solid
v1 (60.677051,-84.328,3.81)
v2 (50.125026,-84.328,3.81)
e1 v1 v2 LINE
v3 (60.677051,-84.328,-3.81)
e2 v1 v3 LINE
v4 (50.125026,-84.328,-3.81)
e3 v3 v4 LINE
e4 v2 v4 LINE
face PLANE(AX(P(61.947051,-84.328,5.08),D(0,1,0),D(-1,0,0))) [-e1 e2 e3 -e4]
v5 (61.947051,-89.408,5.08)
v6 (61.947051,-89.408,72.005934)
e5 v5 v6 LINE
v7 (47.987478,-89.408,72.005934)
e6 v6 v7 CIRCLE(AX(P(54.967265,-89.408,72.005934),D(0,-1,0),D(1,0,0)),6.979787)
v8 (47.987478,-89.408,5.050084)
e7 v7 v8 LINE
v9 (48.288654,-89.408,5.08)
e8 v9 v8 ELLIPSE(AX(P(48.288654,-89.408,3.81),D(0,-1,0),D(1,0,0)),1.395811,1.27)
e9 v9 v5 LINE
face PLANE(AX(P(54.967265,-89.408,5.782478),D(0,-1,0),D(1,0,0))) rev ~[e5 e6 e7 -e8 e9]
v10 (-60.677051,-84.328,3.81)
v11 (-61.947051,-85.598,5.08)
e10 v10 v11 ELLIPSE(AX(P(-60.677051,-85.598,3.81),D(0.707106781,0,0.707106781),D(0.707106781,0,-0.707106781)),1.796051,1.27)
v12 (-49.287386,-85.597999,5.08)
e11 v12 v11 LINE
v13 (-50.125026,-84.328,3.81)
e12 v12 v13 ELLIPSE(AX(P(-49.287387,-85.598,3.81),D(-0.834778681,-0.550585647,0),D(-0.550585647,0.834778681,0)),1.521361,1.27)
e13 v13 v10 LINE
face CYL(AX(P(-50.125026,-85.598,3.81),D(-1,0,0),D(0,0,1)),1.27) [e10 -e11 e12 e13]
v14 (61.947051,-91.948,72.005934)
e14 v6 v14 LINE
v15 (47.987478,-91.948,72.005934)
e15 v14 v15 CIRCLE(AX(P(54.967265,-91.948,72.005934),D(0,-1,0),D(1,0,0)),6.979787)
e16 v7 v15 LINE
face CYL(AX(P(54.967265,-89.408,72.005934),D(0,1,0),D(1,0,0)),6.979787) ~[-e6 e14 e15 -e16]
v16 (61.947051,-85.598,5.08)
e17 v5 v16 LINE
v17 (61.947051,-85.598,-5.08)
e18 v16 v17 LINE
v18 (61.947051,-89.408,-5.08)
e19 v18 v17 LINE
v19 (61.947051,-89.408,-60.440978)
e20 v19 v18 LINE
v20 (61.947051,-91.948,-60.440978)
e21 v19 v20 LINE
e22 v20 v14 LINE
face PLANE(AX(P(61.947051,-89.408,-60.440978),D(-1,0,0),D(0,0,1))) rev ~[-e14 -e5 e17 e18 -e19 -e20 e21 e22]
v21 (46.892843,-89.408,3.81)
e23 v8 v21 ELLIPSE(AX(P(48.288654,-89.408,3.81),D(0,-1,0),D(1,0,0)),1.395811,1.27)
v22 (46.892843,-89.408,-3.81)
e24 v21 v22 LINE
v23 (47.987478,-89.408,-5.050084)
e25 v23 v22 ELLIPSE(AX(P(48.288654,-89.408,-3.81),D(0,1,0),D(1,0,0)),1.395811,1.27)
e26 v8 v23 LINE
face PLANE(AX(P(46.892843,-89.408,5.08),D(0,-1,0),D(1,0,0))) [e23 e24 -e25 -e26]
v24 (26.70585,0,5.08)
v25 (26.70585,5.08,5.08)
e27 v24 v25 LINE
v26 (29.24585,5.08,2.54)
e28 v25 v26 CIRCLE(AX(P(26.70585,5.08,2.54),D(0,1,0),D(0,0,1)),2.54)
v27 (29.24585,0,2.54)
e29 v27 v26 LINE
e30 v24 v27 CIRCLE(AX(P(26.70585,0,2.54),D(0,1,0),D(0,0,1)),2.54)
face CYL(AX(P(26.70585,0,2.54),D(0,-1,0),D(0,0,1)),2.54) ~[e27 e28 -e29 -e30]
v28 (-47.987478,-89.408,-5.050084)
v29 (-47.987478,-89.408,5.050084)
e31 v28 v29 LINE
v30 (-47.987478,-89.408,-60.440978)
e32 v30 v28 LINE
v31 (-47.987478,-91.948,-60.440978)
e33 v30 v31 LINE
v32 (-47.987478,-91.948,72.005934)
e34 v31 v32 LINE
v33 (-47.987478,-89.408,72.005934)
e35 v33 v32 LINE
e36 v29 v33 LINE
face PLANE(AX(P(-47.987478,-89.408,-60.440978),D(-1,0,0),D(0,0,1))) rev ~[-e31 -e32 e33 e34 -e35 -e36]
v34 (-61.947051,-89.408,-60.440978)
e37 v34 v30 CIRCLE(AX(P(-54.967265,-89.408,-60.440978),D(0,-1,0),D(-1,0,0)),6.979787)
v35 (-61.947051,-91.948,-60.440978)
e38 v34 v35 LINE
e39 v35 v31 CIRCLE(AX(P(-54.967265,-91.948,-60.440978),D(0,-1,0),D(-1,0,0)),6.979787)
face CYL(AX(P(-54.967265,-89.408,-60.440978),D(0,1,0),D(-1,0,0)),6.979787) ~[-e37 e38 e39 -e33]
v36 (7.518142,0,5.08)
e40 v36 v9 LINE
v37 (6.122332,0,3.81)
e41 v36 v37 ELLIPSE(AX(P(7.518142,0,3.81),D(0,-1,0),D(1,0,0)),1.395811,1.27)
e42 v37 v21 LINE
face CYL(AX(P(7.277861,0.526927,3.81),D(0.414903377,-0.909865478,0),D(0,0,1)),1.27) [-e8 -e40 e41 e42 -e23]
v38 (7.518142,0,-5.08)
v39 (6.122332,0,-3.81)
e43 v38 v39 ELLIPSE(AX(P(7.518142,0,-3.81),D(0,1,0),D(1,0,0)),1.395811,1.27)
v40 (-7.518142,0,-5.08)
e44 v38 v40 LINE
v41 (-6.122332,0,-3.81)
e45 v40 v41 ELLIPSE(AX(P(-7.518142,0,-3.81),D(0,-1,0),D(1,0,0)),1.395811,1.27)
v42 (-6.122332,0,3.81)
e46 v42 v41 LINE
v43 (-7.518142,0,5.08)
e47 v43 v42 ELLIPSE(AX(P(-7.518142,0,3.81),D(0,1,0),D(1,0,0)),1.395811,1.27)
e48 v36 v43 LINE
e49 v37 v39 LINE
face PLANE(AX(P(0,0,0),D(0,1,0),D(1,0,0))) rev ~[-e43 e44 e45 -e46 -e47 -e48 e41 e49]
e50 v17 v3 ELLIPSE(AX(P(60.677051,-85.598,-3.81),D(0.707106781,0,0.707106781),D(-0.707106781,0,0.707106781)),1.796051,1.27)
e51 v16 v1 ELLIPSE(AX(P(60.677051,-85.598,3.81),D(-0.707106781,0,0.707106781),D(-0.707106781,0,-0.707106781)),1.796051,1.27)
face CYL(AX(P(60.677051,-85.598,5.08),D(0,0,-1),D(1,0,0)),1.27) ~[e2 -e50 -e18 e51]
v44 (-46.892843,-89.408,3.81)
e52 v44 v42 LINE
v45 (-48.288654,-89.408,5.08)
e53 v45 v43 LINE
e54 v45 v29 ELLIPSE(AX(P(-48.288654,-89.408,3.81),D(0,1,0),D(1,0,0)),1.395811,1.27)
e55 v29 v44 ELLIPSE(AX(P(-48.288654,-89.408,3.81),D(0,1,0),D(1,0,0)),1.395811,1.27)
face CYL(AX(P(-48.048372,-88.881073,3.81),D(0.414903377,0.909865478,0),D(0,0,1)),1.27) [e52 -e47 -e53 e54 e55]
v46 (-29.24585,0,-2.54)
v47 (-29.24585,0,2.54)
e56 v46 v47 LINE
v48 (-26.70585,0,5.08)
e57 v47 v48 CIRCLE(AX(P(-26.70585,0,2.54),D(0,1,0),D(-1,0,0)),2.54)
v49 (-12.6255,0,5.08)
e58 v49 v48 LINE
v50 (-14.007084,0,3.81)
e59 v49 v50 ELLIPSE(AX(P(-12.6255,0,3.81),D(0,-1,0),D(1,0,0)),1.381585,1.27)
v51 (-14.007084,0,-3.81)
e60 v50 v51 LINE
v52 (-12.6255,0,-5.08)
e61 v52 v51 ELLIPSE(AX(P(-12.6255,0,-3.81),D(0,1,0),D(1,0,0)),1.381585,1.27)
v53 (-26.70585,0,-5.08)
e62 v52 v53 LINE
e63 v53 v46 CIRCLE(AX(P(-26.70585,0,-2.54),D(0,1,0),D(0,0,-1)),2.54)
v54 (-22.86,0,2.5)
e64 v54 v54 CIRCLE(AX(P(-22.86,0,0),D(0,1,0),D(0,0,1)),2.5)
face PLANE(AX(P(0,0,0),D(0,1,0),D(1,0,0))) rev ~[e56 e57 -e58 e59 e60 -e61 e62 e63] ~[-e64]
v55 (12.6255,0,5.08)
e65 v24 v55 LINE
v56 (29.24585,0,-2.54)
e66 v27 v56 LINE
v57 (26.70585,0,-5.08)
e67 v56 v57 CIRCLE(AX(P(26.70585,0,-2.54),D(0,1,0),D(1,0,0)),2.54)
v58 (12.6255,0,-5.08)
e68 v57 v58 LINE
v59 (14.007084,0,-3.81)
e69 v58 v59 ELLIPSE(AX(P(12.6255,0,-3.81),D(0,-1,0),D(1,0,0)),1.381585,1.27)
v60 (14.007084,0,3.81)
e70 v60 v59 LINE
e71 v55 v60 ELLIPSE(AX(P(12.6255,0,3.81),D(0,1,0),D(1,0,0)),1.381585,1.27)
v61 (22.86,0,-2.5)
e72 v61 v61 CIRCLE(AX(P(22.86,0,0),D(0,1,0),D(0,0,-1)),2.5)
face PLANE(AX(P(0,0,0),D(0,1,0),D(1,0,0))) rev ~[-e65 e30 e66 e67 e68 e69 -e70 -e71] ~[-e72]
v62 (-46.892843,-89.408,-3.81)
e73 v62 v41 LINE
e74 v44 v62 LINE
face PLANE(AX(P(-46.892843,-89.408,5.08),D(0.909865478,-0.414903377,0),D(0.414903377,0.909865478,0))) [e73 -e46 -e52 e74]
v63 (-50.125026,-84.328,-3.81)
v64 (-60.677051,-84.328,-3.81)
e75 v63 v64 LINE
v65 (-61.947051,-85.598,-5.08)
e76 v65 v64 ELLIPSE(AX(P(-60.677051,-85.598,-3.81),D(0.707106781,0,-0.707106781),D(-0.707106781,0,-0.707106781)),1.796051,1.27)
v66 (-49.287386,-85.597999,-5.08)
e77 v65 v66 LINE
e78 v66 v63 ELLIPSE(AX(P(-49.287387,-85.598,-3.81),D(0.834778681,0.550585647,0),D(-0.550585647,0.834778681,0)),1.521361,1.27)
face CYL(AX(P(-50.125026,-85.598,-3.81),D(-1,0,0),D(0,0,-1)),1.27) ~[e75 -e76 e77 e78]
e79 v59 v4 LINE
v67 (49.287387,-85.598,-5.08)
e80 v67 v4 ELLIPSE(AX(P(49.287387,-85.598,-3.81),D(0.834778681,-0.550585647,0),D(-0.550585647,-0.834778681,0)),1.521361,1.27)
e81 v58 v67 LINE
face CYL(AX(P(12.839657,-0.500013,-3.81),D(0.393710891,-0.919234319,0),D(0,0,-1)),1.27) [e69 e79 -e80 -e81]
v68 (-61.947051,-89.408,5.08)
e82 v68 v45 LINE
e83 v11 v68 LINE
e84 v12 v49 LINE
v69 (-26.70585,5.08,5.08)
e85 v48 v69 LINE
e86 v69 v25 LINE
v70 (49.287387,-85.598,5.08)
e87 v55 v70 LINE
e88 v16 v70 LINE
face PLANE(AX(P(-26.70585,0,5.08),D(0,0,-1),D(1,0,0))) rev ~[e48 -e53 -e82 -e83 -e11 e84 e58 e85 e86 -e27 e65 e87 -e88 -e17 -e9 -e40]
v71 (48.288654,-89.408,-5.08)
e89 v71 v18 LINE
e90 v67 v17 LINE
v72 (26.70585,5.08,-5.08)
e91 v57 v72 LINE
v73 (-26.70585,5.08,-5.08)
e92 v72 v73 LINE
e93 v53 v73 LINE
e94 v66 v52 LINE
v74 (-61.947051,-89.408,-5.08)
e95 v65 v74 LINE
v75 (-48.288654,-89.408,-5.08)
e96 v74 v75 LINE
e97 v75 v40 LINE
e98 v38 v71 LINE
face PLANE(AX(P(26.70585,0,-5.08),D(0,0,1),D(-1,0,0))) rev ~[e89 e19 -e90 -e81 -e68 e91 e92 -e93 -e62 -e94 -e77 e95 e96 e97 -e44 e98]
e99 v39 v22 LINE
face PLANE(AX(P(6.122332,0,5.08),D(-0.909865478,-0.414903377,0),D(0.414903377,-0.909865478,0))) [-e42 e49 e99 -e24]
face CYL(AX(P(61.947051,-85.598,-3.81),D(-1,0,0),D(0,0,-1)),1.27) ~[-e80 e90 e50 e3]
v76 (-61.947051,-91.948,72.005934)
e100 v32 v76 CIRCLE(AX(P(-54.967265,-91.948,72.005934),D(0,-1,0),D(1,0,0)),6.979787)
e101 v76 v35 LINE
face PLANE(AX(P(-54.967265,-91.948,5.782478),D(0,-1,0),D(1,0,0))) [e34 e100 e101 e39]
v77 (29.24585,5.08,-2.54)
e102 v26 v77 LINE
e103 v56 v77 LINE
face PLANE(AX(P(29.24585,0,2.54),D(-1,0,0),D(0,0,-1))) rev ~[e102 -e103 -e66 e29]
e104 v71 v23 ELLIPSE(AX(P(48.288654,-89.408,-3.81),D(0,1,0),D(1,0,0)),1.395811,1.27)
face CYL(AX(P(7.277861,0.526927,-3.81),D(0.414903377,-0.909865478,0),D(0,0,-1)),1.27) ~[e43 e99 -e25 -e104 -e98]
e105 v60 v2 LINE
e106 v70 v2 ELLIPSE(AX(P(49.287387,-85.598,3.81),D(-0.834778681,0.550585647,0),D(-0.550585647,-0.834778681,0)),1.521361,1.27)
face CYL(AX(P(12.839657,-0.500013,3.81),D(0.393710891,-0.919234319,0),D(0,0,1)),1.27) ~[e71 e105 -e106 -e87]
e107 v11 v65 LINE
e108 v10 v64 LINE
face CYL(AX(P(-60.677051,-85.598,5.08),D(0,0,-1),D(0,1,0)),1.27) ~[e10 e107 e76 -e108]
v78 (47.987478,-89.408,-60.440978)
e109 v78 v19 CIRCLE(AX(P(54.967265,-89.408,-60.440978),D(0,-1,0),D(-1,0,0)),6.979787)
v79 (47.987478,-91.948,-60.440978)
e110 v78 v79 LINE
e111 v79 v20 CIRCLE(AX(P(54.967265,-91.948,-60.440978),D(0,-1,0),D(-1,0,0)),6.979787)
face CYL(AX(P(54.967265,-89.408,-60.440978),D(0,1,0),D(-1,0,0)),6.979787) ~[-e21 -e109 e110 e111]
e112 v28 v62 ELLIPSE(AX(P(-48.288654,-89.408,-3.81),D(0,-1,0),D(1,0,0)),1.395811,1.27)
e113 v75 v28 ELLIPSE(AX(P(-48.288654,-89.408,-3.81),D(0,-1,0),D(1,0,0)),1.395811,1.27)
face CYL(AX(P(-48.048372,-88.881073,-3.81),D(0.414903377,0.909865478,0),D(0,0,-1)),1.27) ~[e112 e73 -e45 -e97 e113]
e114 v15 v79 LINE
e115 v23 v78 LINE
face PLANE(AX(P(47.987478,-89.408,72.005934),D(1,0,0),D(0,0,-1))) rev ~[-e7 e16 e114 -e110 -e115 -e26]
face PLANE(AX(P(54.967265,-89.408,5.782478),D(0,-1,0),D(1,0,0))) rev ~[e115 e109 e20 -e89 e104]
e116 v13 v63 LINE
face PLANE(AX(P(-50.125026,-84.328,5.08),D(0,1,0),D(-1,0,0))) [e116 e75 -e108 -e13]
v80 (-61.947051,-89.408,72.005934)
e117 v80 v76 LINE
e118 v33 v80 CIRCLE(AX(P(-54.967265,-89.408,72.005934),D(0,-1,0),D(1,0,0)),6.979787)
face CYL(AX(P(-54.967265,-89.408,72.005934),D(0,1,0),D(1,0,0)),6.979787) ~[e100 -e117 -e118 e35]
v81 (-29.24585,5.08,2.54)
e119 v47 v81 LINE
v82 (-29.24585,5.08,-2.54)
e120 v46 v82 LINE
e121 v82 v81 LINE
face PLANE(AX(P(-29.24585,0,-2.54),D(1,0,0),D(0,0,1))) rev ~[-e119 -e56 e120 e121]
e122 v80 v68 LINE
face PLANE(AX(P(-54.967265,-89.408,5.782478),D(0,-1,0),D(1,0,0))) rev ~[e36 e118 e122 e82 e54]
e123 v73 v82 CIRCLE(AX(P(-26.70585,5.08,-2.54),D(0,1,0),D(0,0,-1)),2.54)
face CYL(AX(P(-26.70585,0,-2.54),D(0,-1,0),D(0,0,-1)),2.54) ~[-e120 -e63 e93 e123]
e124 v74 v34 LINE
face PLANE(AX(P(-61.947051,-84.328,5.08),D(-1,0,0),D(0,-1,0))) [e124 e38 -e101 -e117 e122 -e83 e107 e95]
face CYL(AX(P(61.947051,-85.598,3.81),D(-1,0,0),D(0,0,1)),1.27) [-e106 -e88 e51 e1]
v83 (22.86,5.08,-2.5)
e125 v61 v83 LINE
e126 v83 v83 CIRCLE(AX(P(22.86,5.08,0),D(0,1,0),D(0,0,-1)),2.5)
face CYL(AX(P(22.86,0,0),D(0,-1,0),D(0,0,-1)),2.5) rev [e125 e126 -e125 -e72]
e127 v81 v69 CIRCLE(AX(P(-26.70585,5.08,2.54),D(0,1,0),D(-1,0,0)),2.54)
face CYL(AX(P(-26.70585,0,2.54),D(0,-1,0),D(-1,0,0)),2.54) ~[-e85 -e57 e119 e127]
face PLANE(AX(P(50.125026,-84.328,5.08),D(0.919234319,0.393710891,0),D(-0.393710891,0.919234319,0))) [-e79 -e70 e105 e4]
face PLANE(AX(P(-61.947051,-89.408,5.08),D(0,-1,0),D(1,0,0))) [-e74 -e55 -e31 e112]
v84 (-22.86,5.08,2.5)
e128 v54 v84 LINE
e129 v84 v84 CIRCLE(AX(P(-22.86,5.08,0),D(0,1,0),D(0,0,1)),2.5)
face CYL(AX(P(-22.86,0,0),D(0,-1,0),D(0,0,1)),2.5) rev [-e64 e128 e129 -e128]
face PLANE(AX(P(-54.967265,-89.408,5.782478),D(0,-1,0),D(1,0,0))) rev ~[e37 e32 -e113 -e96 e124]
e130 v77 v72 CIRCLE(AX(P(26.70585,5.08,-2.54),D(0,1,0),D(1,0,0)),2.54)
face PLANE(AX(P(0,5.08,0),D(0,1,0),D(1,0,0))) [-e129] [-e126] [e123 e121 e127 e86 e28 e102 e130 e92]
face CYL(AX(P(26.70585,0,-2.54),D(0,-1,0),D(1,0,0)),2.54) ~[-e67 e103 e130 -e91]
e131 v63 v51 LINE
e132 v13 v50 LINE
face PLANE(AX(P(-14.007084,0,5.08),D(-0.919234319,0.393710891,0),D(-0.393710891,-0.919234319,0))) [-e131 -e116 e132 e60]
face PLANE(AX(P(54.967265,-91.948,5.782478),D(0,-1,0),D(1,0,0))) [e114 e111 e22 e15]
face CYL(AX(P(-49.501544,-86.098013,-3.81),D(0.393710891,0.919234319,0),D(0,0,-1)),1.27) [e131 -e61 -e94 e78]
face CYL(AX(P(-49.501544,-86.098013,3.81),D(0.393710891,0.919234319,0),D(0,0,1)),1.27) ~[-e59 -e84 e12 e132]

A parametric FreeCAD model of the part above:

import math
import FreeCAD as App
import Part
import Sketcher
Q = App.Units.Quantity


def edges_at(feature, points):
    """Names of the edges that pass closest to the given points."""
    edges = feature.Shape.Edges
    near = lambda p: min(range(len(edges)), key=lambda i: edges[i].distToShape(Part.Vertex(*p))[0])
    return sorted({f"Edge{near(p) + 1}" for p in points})

doc = App.newDocument("Part")
body = doc.addObject("PartDesign::Body", "Body")

# Sketch on XZ plane
sketch1 = body.newObject("Sketcher::SketchObject", "Sketch")
sketch1.AttachmentSupport = (doc.getObject("XZ_Plane"), [""])
sketch1.MapMode = "FlatFace"
sketch1.addGeometry([
    Part.LineSegment(App.Vector(26.7, -5.1, 0), App.Vector(-26.7, -5.1, 0)),  # 0
    Part.ArcOfCircle(Part.Circle(App.Vector(-26.7, -2.5, 0), App.Vector(0, 0, 1), 2.5), math.radians(-180), math.radians(-90)),  # 1
    Part.LineSegment(App.Vector(-29.2, -2.5, 0), App.Vector(-29.2, 2.5, 0)),  # 2
    Part.ArcOfCircle(Part.Circle(App.Vector(-26.7, 2.5, 0), App.Vector(0, 0, 1), 2.5), math.radians(90), math.radians(180)),  # 3
    Part.LineSegment(App.Vector(-26.7, 5.1, 0), App.Vector(26.7, 5.1, 0)),  # 4
    Part.ArcOfCircle(Part.Circle(App.Vector(26.7, 2.5, 0), App.Vector(0, 0, 1), 2.5), math.radians(0), math.radians(90)),  # 5
    Part.LineSegment(App.Vector(29.2, 2.5, 0), App.Vector(29.2, -2.5, 0)),  # 6
    Part.ArcOfCircle(Part.Circle(App.Vector(26.7, -2.5, 0), App.Vector(0, 0, 1), 2.5), math.radians(-90), math.radians(0)),  # 7
    Part.Circle(App.Vector(-22.9, 0, 0), App.Vector(0, 0, 1), 2.5),  # 8
    Part.Circle(App.Vector(22.9, 0, 0), App.Vector(0, 0, 1), 2.5),  # 9
], False)
sketch1.addConstraint([
    Sketcher.Constraint("Tangent", 0, 2, 1, 2),
    Sketcher.Constraint("Tangent", 1, 1, 2, 1),
    Sketcher.Constraint("Tangent", 2, 2, 3, 2),
    Sketcher.Constraint("Tangent", 3, 1, 4, 1),
    Sketcher.Constraint("Tangent", 4, 2, 5, 2),
    Sketcher.Constraint("Tangent", 5, 1, 6, 1),
    Sketcher.Constraint("Tangent", 6, 2, 7, 2),
    Sketcher.Constraint("Tangent", 7, 1, 0, 1),
    Sketcher.Constraint("Horizontal", 0),
    Sketcher.Constraint("Vertical", 2),
    Sketcher.Constraint("Horizontal", 4),
    Sketcher.Constraint("Vertical", 6),
    Sketcher.Constraint("Equal", 1, 3),
    Sketcher.Constraint("Equal", 3, 5),
    Sketcher.Constraint("Equal", 5, 7),
    Sketcher.Constraint("Equal", 8, 9),
    Sketcher.Constraint("Symmetric", 1, 3, 5, 3, -1, 1),
    Sketcher.Constraint("Symmetric", 8, 3, 9, 3, -1, 1),
    Sketcher.Constraint("PointOnObject", 8, 3, -1),
    Sketcher.Constraint("Radius", 1, Q("0.1 in")),
    Sketcher.Constraint("DistanceY", 2, 1, 2, 2, Q("0.2 in")),
    Sketcher.Constraint("DistanceX", 8, 3, -1, 1, Q("0.9 in")),
    Sketcher.Constraint("Diameter", 8, Q("5 mm")),
    Sketcher.Constraint("DistanceX", 0, 2, 0, 1, Q("53.4117 mm")),
])
pad1 = body.newObject("PartDesign::Pad", "Pad")
pad1.Profile = sketch1
pad1.Length = Q("0.2 in")
pad1.Reversed = True

# Sketch on XY plane
sketch2 = body.newObject("Sketcher::SketchObject", "Sketch001")
sketch2.AttachmentSupport = (doc.getObject("XY_Plane"), [""])
sketch2.MapMode = "FlatFace"
sketch2.AttachmentOffset = App.Placement(App.Vector(0, 0, 0.2 * 25.4), App.Rotation())
sketch2.addGeometry([
    Part.LineSegment(App.Vector(-14, 0, 0), App.Vector(-50, -84, 0)),  # 0
    Part.LineSegment(App.Vector(-50, -84, 0), App.Vector(-62, -84, 0)),  # 1
    Part.LineSegment(App.Vector(-62, -84, 0), App.Vector(-62, -89, 0)),  # 2
    Part.LineSegment(App.Vector(-62, -89, 0), App.Vector(-47, -89, 0)),  # 3
    Part.LineSegment(App.Vector(-47, -89, 0), App.Vector(-6, 0, 0)),  # 4
    Part.LineSegment(App.Vector(-6, 0, 0), App.Vector(-14, 0, 0)),  # 5
    Part.LineSegment(App.Vector(62, -89, 0), App.Vector(62, -84, 0)),  # 6
    Part.LineSegment(App.Vector(62, -84, 0), App.Vector(50, -84, 0)),  # 7
    Part.LineSegment(App.Vector(50, -84, 0), App.Vector(14, 0, 0)),  # 8
    Part.LineSegment(App.Vector(14, 0, 0), App.Vector(6, 0, 0)),  # 9
    Part.LineSegment(App.Vector(6, 0, 0), App.Vector(47, -89, 0)),  # 10
    Part.LineSegment(App.Vector(47, -89, 0), App.Vector(62, -89, 0)),  # 11
], False)
sketch2.addConstraint([
    Sketcher.Constraint("Coincident", 0, 2, 1, 1),
    Sketcher.Constraint("Coincident", 1, 2, 2, 1),
    Sketcher.Constraint("Coincident", 2, 2, 3, 1),
    Sketcher.Constraint("Coincident", 3, 2, 4, 1),
    Sketcher.Constraint("Coincident", 4, 2, 5, 1),
    Sketcher.Constraint("Coincident", 5, 2, 0, 1),
    Sketcher.Constraint("Coincident", 6, 2, 7, 1),
    Sketcher.Constraint("Coincident", 7, 2, 8, 1),
    Sketcher.Constraint("Coincident", 8, 2, 9, 1),
    Sketcher.Constraint("Coincident", 9, 2, 10, 1),
    Sketcher.Constraint("Coincident", 10, 2, 11, 1),
    Sketcher.Constraint("Coincident", 11, 2, 6, 1),
    Sketcher.Constraint("Horizontal", 1),
    Sketcher.Constraint("Vertical", 2),
    Sketcher.Constraint("Horizontal", 3),
    Sketcher.Constraint("Horizontal", 5),
    Sketcher.Constraint("Vertical", 6),
    Sketcher.Constraint("Horizontal", 7),
    Sketcher.Constraint("Horizontal", 9),
    Sketcher.Constraint("Horizontal", 11),
    Sketcher.Constraint("Symmetric", 5, 2, 8, 2, -1, 1),
    Sketcher.Constraint("Symmetric", 1, 2, 6, 2, -2),
    Sketcher.Constraint("Symmetric", 4, 2, 9, 2, -2),
    Sketcher.Constraint("Symmetric", 3, 2, 10, 2, -2),
    Sketcher.Constraint("Equal", 1, 7),
    Sketcher.Constraint("DistanceY", 2, 2, 2, 1, Q("0.2 in")),
    Sketcher.Constraint("DistanceY", 0, 2, -1, 1, Q("3.32 in")),
    Sketcher.Constraint("DistanceX", 3, 1, 3, 2, Q("15.054208 mm")),
    Sketcher.Constraint("Distance", 0, Q("91.737219 mm")),
    Sketcher.Constraint("DistanceX", 1, 2, 1, 1, Q("11.822025 mm")),
    Sketcher.Constraint("DistanceX", 5, 2, 5, 1, Q("7.884753 mm")),
    Sketcher.Constraint("DistanceX", 1, 2, -1, 1, Q("61.947051 mm")),
])
pad2 = body.newObject("PartDesign::Pad", "Pad001")
pad2.Profile = sketch2
pad2.Length = Q("0.4 in")
pad2.Reversed = True
doc.recompute()

fillet = body.newObject("PartDesign::Fillet", "Fillet")
fillet.Base = (pad2, edges_at(pad2, [
    (-56.036, -84.328, -5.08),
    (-61.947, -84.328, 0),
    (-56.036, -84.328, 5.08),
    (56.036, -84.328, -5.08),
    (61.947, -84.328, 0),
    (56.036, -84.328, 5.08),
]))
fillet.Radius = Q("0.05 in")
doc.recompute()

fillet2 = body.newObject("PartDesign::Fillet", "Fillet001")
fillet2.Base = (fillet, edges_at(fillet, [
    (32.338, -42.799, 5.08),
    (26.508, -44.704, 5.08),
    (26.508, -44.704, -5.08),
    (32.338, -42.799, -5.08),
    (-26.508, -44.704, 5.08),
    (-26.508, -44.704, -5.08),
    (-32.338, -42.799, -5.08),
    (-32.338, -42.799, 5.08),
]))
fillet2.Radius = Q("0.05 in")

# Sketch on XZ plane
sketch3 = body.newObject("Sketcher::SketchObject", "Sketch002")
sketch3.AttachmentSupport = (doc.getObject("XZ_Plane"), [""])
sketch3.MapMode = "FlatFace"
sketch3.AttachmentOffset = App.Placement(App.Vector(0, 0, 3.52 * 25.4), App.Rotation())
sketch3.addGeometry([
    Part.LineSegment(App.Vector(48, 72, 0), App.Vector(48, -60, 0)),  # 0
    Part.ArcOfCircle(Part.Circle(App.Vector(55, -60, 0), App.Vector(0, 0, 1), 7), math.radians(-180), math.radians(0)),  # 1
    Part.LineSegment(App.Vector(62, -60, 0), App.Vector(62, 72, 0)),  # 2
    Part.ArcOfCircle(Part.Circle(App.Vector(55, 72, 0), App.Vector(0, 0, 1), 7), math.radians(0), math.radians(180)),  # 3
    Part.LineSegment(App.Vector(-62, 72, 0), App.Vector(-62, -60, 0)),  # 4
    Part.ArcOfCircle(Part.Circle(App.Vector(-55, -60, 0), App.Vector(0, 0, 1), 7), math.radians(-180), math.radians(0)),  # 5
    Part.LineSegment(App.Vector(-48, -60, 0), App.Vector(-48, 72, 0)),  # 6
    Part.ArcOfCircle(Part.Circle(App.Vector(-55, 72, 0), App.Vector(0, 0, 1), 7), math.radians(0), math.radians(180)),  # 7
], False)
sketch3.addConstraint([
    Sketcher.Constraint("Tangent", 0, 2, 1, 1),
    Sketcher.Constraint("Tangent", 1, 2, 2, 1),
    Sketcher.Constraint("Tangent", 2, 2, 3, 1),
    Sketcher.Constraint("Tangent", 3, 2, 0, 1),
    Sketcher.Constraint("Tangent", 4, 2, 5, 1),
    Sketcher.Constraint("Tangent", 5, 2, 6, 1),
    Sketcher.Constraint("Tangent", 6, 2, 7, 1),
    Sketcher.Constraint("Tangent", 7, 2, 4, 1),
    Sketcher.Constraint("Vertical", 0),
    Sketcher.Constraint("Vertical", 2),
    Sketcher.Constraint("Vertical", 4),
    Sketcher.Constraint("Vertical", 6),
    Sketcher.Constraint("Equal", 3, 5),
    Sketcher.Constraint("Symmetric", 1, 3, 5, 3, -2),
    Sketcher.Constraint("Horizontal", 3, 3, 7, 3),
    Sketcher.Constraint("Radius", 1, Q("6.979787 mm")),
    Sketcher.Constraint("DistanceY", 0, 2, 0, 1, Q("132.446912 mm")),
    Sketcher.Constraint("DistanceX", -1, 1, 1, 2, Q("61.947051 mm")),
    Sketcher.Constraint("DistanceY", 1, 3, -1, 1, Q("60.440978 mm")),
])
pad3 = body.newObject("PartDesign::Pad", "Pad002")
pad3.Profile = sketch3
pad3.Length = Q("0.1 in")

doc.recompute()
